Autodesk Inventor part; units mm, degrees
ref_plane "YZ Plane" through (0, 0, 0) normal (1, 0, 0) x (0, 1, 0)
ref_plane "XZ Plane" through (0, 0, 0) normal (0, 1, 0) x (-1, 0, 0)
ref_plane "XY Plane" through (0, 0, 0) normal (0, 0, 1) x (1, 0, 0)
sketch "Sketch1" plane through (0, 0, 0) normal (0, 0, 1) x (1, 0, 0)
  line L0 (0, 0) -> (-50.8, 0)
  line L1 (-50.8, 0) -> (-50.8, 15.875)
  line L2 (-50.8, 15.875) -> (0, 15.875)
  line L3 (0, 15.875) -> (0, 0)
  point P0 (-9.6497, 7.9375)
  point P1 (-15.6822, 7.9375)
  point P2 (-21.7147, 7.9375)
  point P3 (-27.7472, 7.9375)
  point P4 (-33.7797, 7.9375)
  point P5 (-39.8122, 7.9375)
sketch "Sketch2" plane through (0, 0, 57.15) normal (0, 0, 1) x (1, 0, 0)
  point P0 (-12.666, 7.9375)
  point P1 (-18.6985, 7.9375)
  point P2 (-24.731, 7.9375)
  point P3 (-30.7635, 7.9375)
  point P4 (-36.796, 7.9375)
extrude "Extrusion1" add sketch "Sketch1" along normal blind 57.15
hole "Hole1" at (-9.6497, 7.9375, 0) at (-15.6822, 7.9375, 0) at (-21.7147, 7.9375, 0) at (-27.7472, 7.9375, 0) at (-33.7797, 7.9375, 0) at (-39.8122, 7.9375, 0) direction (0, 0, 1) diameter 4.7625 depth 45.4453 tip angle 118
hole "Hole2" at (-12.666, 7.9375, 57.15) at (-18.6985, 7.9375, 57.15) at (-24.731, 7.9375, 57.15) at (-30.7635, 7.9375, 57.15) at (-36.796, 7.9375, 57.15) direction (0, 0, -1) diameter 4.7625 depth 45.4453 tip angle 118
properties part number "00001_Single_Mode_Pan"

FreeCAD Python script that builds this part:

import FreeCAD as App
import Part
import Sketcher
from FreeCAD import Vector
Q = App.Units.Quantity

doc = App.newDocument("Part")
body = doc.addObject("PartDesign::Body", "Body")

# Sketch on XY plane
sketch1 = body.newObject("Sketcher::SketchObject", "Sketch")
sketch1.AttachmentSupport = (doc.getObject("XY_Plane"), [""])
sketch1.MapMode = "FlatFace"
sketch1.addGeometry(Part.LineSegment(Vector(-50.8, 0, 0), Vector(0, 0, 0)), False)
sketch1.addGeometry(Part.LineSegment(Vector(0, 0, 0), Vector(0, 15.875, 0)), False)
sketch1.addGeometry(Part.LineSegment(Vector(0, 15.875, 0), Vector(-50.8, 15.875, 0)), False)
sketch1.addGeometry(Part.LineSegment(Vector(-50.8, 15.875, 0), Vector(-50.8, 0, 0)), False)
sketch1.addConstraint(Sketcher.Constraint("Coincident", 0, 2, 1, 1))
sketch1.addConstraint(Sketcher.Constraint("Coincident", 1, 2, 2, 1))
sketch1.addConstraint(Sketcher.Constraint("Coincident", 2, 2, 3, 1))
sketch1.addConstraint(Sketcher.Constraint("Coincident", 3, 2, 0, 1))
sketch1.addConstraint(Sketcher.Constraint("Horizontal", 0))
sketch1.addConstraint(Sketcher.Constraint("Vertical", 1))
sketch1.addConstraint(Sketcher.Constraint("Horizontal", 2))
sketch1.addConstraint(Sketcher.Constraint("Vertical", 3))
sketch1.addConstraint(Sketcher.Constraint("Coincident", 0, 2, -1, 1))
sketch1.addConstraint(Sketcher.Constraint("DistanceX", 0, 1, 0, 2, Q("2 in")))
sketch1.addConstraint(Sketcher.Constraint("DistanceY", 1, 1, 1, 2, Q("0.625 in")))
pad1 = body.newObject("PartDesign::Pad", "Pad")
pad1.Profile = sketch1
pad1.Length = Q("2.25 in")

# Sketch on XY plane
sketch2 = body.newObject("Sketcher::SketchObject", "Sketch001")
sketch2.AttachmentSupport = (doc.getObject("XY_Plane"), [""])
sketch2.MapMode = "FlatFace"
sketch2.addGeometry(Part.Circle(Vector(-9.6497, 7.9375, 0), Vector(0, 0, 1), 2.38125), False)
sketch2.addGeometry(Part.Circle(Vector(-15.6822, 7.9375, 0), Vector(0, 0, 1), 2.38125), False)
sketch2.addGeometry(Part.Circle(Vector(-21.7147, 7.9375, 0), Vector(0, 0, 1), 2.38125), False)
sketch2.addGeometry(Part.Circle(Vector(-27.7472, 7.9375, 0), Vector(0, 0, 1), 2.38125), False)
sketch2.addGeometry(Part.Circle(Vector(-33.7797, 7.9375, 0), Vector(0, 0, 1), 2.38125), False)
sketch2.addGeometry(Part.Circle(Vector(-39.8122, 7.9375, 0), Vector(0, 0, 1), 2.38125), False)
sketch2.addConstraint(Sketcher.Constraint("Equal", 0, 1))
sketch2.addConstraint(Sketcher.Constraint("Equal", 1, 2))
sketch2.addConstraint(Sketcher.Constraint("Equal", 2, 3))
sketch2.addConstraint(Sketcher.Constraint("Equal", 3, 4))
sketch2.addConstraint(Sketcher.Constraint("Equal", 4, 5))
sketch2.addConstraint(Sketcher.Constraint("Horizontal", 0, 3, 1, 3))
sketch2.addConstraint(Sketcher.Constraint("Horizontal", 1, 3, 2, 3))
sketch2.addConstraint(Sketcher.Constraint("Horizontal", 2, 3, 3, 3))
sketch2.addConstraint(Sketcher.Constraint("Horizontal", 3, 3, 4, 3))
sketch2.addConstraint(Sketcher.Constraint("Horizontal", 4, 3, 5, 3))
sketch2.addConstraint(Sketcher.Constraint("Diameter", 0, Q("0.1875 in")))
sketch2.addConstraint(Sketcher.Constraint("DistanceX", 4, 3, 0, 3, Q("0.95 in")))
sketch2.addConstraint(Sketcher.Constraint("DistanceX", 5, 3, 1, 3, Q("0.95 in")))
sketch2.addConstraint(Sketcher.Constraint("DistanceY", -1, 1, 0, 3, Q("0.3125 in")))
sketch2.addConstraint(Sketcher.Constraint("DistanceX", 2, 3, 0, 3, Q("0.475 in")))
sketch2.addConstraint(Sketcher.Constraint("DistanceX", 3, 3, 1, 3, Q("0.475 in")))
sketch2.addConstraint(Sketcher.Constraint("DistanceX", 5, 3, 0, 3, Q("1.1875 in")))
sketch2.addConstraint(Sketcher.Constraint("DistanceX", 0, 3, -1, 1, Q("0.3799 in")))
doc.recompute()
hole = body.newObject("PartDesign::Hole", "Hole")
hole.Profile = sketch2
hole.ThreadType = "None"
hole.Diameter = Q("0.1875 in")
hole.DepthType = "Dimension"
hole.Depth = 45.4453
hole.DrillPoint = "Angled"
hole.DrillPointAngle = 118
hole.Reversed = True

# Sketch on XY plane
sketch3 = body.newObject("Sketcher::SketchObject", "Sketch002")
sketch3.AttachmentSupport = (doc.getObject("XY_Plane"), [""])
sketch3.MapMode = "FlatFace"
sketch3.AttachmentOffset = App.Placement(Vector(0, 0, 2.25 * 25.4), App.Rotation())
sketch3.addGeometry(Part.Circle(Vector(-12.666, 7.9375, 0), Vector(0, 0, 1), 2.38125), False)
sketch3.addGeometry(Part.Circle(Vector(-18.6985, 7.9375, 0), Vector(0, 0, 1), 2.38125), False)
sketch3.addGeometry(Part.Circle(Vector(-24.731, 7.9375, 0), Vector(0, 0, 1), 2.38125), False)
sketch3.addGeometry(Part.Circle(Vector(-30.7635, 7.9375, 0), Vector(0, 0, 1), 2.38125), False)
sketch3.addGeometry(Part.Circle(Vector(-36.796, 7.9375, 0), Vector(0, 0, 1), 2.38125), False)
sketch3.addConstraint(Sketcher.Constraint("Equal", 0, 1))
sketch3.addConstraint(Sketcher.Constraint("Equal", 1, 2))
sketch3.addConstraint(Sketcher.Constraint("Equal", 2, 3))
sketch3.addConstraint(Sketcher.Constraint("Equal", 3, 4))
sketch3.addConstraint(Sketcher.Constraint("Horizontal", 0, 3, 1, 3))
sketch3.addConstraint(Sketcher.Constraint("Horizontal", 1, 3, 2, 3))
sketch3.addConstraint(Sketcher.Constraint("Horizontal", 2, 3, 3, 3))
sketch3.addConstraint(Sketcher.Constraint("Horizontal", 3, 3, 4, 3))
sketch3.addConstraint(Sketcher.Constraint("Diameter", 0, Q("0.1875 in")))
sketch3.addConstraint(Sketcher.Constraint("DistanceX", 4, 3, 0, 3, Q("0.95 in")))
sketch3.addConstraint(Sketcher.Constraint("DistanceY", -1, 1, 0, 3, Q("0.3125 in")))
sketch3.addConstraint(Sketcher.Constraint("DistanceX", 2, 3, 0, 3, Q("0.475 in")))
sketch3.addConstraint(Sketcher.Constraint("DistanceX", 3, 3, 1, 3, Q("0.475 in")))
sketch3.addConstraint(Sketcher.Constraint("DistanceX", 1, 3, 0, 3, Q("0.2375 in")))
sketch3.addConstraint(Sketcher.Constraint("DistanceX", 0, 3, -1, 1, 12.666))
doc.recompute()
hole2 = body.newObject("PartDesign::Hole", "Hole001")
hole2.Profile = sketch3
hole2.ThreadType = "None"
hole2.Diameter = Q("0.1875 in")
hole2.DepthType = "Dimension"
hole2.Depth = 45.4453
hole2.DrillPoint = "Angled"
hole2.DrillPointAngle = 118

doc.recompute()
